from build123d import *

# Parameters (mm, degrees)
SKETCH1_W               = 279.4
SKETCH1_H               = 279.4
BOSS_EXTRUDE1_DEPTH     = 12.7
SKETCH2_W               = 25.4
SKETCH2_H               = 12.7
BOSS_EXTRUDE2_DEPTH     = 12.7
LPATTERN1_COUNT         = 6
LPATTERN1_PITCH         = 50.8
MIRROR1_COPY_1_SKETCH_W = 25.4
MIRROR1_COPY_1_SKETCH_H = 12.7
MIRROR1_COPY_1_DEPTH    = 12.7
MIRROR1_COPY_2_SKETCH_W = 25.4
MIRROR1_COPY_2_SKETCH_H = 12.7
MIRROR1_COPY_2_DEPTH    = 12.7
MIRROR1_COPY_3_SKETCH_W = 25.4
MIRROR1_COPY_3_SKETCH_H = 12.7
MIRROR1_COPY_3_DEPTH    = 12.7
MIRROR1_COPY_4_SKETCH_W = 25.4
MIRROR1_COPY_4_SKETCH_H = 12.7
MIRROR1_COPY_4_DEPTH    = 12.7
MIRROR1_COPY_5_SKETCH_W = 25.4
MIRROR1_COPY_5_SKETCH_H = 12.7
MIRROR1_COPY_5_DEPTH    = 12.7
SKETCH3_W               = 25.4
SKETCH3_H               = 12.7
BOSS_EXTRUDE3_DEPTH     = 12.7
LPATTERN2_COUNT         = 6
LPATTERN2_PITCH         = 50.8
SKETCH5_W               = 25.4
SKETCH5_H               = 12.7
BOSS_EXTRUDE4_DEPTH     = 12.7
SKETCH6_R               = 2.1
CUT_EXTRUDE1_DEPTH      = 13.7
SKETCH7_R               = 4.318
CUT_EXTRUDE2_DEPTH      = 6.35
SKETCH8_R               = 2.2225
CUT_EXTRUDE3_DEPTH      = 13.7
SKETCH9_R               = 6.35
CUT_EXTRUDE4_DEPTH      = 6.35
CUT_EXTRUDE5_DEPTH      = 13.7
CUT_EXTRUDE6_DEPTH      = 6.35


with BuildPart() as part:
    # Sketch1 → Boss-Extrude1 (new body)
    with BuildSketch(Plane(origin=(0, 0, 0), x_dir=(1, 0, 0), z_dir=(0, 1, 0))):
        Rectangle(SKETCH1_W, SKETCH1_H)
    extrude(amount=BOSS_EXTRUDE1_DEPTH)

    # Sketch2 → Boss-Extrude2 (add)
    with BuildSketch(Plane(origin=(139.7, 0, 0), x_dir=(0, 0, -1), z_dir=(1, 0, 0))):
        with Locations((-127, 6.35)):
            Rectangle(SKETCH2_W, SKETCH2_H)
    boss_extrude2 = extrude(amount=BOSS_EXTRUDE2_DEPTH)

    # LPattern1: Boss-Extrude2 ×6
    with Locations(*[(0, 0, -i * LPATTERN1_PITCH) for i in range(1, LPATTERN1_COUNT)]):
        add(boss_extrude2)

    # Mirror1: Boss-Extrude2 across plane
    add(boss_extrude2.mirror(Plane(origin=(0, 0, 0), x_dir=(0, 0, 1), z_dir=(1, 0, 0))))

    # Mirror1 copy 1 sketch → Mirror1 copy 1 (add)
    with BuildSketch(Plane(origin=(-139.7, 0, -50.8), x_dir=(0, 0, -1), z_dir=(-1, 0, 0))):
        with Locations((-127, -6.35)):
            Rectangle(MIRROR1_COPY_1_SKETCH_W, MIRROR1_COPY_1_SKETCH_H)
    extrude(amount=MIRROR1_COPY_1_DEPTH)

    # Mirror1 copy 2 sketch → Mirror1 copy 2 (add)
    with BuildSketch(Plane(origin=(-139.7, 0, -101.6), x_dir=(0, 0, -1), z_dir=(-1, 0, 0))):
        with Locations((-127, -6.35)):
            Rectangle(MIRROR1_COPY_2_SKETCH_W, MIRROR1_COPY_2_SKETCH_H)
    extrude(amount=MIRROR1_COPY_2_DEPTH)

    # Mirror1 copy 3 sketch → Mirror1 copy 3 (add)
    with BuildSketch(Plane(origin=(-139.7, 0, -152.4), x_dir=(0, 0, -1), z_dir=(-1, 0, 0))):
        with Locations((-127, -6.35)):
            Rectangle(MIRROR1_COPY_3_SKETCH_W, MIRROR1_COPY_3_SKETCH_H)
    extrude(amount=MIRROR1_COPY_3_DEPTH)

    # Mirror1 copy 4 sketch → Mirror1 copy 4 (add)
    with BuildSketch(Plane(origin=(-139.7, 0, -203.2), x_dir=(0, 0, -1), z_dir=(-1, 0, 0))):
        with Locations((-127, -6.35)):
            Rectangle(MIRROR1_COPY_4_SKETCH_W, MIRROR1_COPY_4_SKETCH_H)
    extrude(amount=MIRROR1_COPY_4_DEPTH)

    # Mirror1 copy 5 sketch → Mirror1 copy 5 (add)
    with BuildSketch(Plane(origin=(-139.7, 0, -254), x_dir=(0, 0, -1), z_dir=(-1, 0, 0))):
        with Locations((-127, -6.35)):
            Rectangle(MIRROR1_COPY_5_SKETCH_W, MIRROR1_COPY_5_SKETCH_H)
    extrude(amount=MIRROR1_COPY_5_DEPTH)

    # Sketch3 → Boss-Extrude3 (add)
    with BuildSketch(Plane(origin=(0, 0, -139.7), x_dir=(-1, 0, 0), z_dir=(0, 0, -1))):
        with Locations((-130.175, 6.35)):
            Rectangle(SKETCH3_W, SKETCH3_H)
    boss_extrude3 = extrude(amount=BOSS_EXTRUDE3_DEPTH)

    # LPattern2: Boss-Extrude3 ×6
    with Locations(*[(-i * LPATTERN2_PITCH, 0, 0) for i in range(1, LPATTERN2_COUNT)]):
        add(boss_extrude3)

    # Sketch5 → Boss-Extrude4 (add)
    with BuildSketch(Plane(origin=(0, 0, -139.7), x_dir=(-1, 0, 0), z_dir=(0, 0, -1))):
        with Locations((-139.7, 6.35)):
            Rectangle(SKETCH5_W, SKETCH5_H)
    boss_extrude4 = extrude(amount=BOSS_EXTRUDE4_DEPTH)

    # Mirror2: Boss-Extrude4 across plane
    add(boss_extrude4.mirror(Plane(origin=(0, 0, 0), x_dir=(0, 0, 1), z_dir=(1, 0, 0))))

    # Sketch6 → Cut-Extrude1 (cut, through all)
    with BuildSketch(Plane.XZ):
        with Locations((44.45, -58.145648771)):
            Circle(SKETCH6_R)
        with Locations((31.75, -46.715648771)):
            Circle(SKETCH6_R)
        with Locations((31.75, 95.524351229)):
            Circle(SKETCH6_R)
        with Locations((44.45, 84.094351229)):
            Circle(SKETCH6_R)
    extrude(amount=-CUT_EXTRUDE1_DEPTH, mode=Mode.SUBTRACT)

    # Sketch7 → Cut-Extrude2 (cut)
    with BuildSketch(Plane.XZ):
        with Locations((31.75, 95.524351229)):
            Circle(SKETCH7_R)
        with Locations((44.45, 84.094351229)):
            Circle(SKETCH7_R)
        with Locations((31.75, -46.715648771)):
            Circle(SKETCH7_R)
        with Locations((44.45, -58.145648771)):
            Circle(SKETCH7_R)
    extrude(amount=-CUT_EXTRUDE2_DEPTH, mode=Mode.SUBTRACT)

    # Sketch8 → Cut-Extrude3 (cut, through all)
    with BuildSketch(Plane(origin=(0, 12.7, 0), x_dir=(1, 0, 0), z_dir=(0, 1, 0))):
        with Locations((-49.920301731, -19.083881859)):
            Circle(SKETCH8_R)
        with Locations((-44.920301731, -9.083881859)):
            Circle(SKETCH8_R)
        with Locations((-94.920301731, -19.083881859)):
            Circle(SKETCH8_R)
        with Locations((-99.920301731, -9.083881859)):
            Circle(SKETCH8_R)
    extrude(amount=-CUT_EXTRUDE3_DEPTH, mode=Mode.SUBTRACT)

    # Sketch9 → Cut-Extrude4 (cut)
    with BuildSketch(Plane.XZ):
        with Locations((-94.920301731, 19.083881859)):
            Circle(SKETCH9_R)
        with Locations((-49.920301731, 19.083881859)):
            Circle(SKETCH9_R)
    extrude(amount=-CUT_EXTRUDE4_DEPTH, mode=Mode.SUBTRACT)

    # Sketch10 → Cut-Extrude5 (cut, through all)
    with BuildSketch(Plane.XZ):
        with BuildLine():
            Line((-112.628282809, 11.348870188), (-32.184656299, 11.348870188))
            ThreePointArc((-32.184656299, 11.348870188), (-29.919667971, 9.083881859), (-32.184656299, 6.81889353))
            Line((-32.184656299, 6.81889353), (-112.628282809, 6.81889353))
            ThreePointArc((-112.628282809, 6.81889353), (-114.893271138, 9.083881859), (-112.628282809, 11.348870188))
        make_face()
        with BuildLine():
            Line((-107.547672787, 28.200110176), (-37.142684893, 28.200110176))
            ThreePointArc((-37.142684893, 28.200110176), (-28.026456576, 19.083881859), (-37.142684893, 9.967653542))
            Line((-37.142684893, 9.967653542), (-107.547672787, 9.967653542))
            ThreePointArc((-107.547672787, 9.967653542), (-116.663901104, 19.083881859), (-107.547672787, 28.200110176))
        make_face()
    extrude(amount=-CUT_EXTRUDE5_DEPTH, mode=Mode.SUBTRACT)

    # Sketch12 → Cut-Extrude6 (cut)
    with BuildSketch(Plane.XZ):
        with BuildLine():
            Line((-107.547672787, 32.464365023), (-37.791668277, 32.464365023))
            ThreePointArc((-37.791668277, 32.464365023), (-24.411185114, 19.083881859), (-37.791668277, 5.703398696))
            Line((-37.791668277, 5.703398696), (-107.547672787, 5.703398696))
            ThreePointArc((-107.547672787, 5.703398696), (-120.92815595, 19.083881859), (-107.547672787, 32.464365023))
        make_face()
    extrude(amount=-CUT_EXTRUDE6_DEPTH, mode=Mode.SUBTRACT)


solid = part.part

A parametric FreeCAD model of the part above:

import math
import FreeCAD as App
import Part
import Sketcher
Q = App.Units.Quantity


def add_polygon(sketch, points):
    """Adds a closed chain of lines whose ends are joined by coincident constraints."""
    first, n = sketch.GeometryCount, len(points)
    for a, b in zip(points, points[1:] + points[:1]):
        sketch.addGeometry(Part.LineSegment(App.Vector(*a, 0), App.Vector(*b, 0)), False)
    for i in range(n):
        sketch.addConstraint(Sketcher.Constraint("Coincident", first + i, 2, first + (i + 1) % n, 1))

doc = App.newDocument("Part")
body = doc.addObject("PartDesign::Body", "Body")

# Sketch on XZ plane
sketch1 = body.newObject("Sketcher::SketchObject", "Sketch")
sketch1.AttachmentSupport = (doc.getObject("XZ_Plane"), [""])
sketch1.MapMode = "FlatFace"
add_polygon(sketch1, [(-139.7, -139.7), (-139.7, 139.7), (139.7, 139.7), (139.7, -139.7)])  # lines 0-3
sketch1.addConstraint([
    Sketcher.Constraint("Vertical", 0),
    Sketcher.Constraint("Horizontal", 1),
    Sketcher.Constraint("Vertical", 2),
    Sketcher.Constraint("Horizontal", 3),
    Sketcher.Constraint("Symmetric", 0, 2, 2, 2, -1, 1),
    Sketcher.Constraint("Equal", 3, 0),
    Sketcher.Constraint("DistanceX", 1, 1, 1, 2, Q("11 in")),
])
pad1 = body.newObject("PartDesign::Pad", "Pad")
pad1.Profile = sketch1
pad1.Length = Q("0.5 in")
pad1.Reversed = True

# Sketch on YZ plane
sketch2 = body.newObject("Sketcher::SketchObject", "Sketch001")
sketch2.AttachmentSupport = (doc.getObject("YZ_Plane"), [""])
sketch2.MapMode = "FlatFace"
sketch2.AttachmentOffset = App.Placement(App.Vector(0, 0, 5.5 * 25.4), App.Rotation())
add_polygon(sketch2, [(12.7, 139.7), (0, 139.7), (0, 114.3), (12.7, 114.3)])  # lines 0-3
sketch2.addConstraint([
    Sketcher.Constraint("Horizontal", 0),
    Sketcher.Constraint("Vertical", 1),
    Sketcher.Constraint("Horizontal", 2),
    Sketcher.Constraint("Vertical", 3),
    Sketcher.Constraint("PointOnObject", 0, 2, -2),
    Sketcher.Constraint("DistanceY", 1, 2, 1, 1, Q("1 in")),
    Sketcher.Constraint("DistanceX", 0, 2, 0, 1, Q("0.5 in")),
    Sketcher.Constraint("DistanceY", -1, 1, 0, 2, Q("5.5 in")),
])
pad2 = body.newObject("PartDesign::Pad", "Pad001")
pad2.Profile = sketch2
pad2.Length = Q("0.5 in")
doc.recompute()

linearpattern = body.newObject("PartDesign::LinearPattern", "LinearPattern")
linearpattern.Originals = [pad2]
linearpattern.Direction = (doc.getObject("Z_Axis"), [""])
linearpattern.Mode = "offset"
linearpattern.Offset = Q("2 in")
linearpattern.Occurrences = 6
linearpattern.Reversed = True
body.Tip = linearpattern
doc.recompute()

mirrored = body.newObject("PartDesign::Mirrored", "Mirrored")
mirrored.Originals = [pad2]
mirrored.MirrorPlane = (doc.getObject("YZ_Plane"), [""])
body.Tip = mirrored

# Sketch on YZ plane
sketch3 = body.newObject("Sketcher::SketchObject", "Sketch002")
sketch3.AttachmentSupport = (doc.getObject("YZ_Plane"), [""])
sketch3.MapMode = "FlatFace"
sketch3.AttachmentOffset = App.Placement(App.Vector(0, 0, -5.5 * 25.4), App.Rotation())
add_polygon(sketch3, [(0, 88.9), (12.7, 88.9), (12.7, 63.5), (0, 63.5)])  # lines 0-3
sketch3.addConstraint([
    Sketcher.Constraint("Horizontal", 0),
    Sketcher.Constraint("Vertical", 1),
    Sketcher.Constraint("Horizontal", 2),
    Sketcher.Constraint("Vertical", 3),
    Sketcher.Constraint("PointOnObject", 2, 2, -2),
    Sketcher.Constraint("DistanceY", 1, 2, 1, 1, Q("1 in")),
    Sketcher.Constraint("DistanceX", 0, 1, 0, 2, Q("0.5 in")),
    Sketcher.Constraint("DistanceY", -1, 1, 0, 2, Q("3.5 in")),
])
pad3 = body.newObject("PartDesign::Pad", "Pad002")
pad3.Profile = sketch3
pad3.Length = Q("0.5 in")
pad3.Reversed = True

# Sketch on YZ plane
sketch4 = body.newObject("Sketcher::SketchObject", "Sketch003")
sketch4.AttachmentSupport = (doc.getObject("YZ_Plane"), [""])
sketch4.MapMode = "FlatFace"
sketch4.AttachmentOffset = App.Placement(App.Vector(0, 0, -5.5 * 25.4), App.Rotation())
add_polygon(sketch4, [(0, 38.1), (12.7, 38.1), (12.7, 12.7), (0, 12.7)])  # lines 0-3
sketch4.addConstraint([
    Sketcher.Constraint("Horizontal", 0),
    Sketcher.Constraint("Vertical", 1),
    Sketcher.Constraint("Horizontal", 2),
    Sketcher.Constraint("Vertical", 3),
    Sketcher.Constraint("PointOnObject", 2, 2, -2),
    Sketcher.Constraint("DistanceY", 1, 2, 1, 1, Q("1 in")),
    Sketcher.Constraint("DistanceX", 0, 1, 0, 2, Q("0.5 in")),
    Sketcher.Constraint("DistanceY", -1, 1, 0, 2, Q("1.5 in")),
])
pad4 = body.newObject("PartDesign::Pad", "Pad003")
pad4.Profile = sketch4
pad4.Length = Q("0.5 in")
pad4.Reversed = True

# Sketch on YZ plane
sketch5 = body.newObject("Sketcher::SketchObject", "Sketch004")
sketch5.AttachmentSupport = (doc.getObject("YZ_Plane"), [""])
sketch5.MapMode = "FlatFace"
sketch5.AttachmentOffset = App.Placement(App.Vector(0, 0, -5.5 * 25.4), App.Rotation())
add_polygon(sketch5, [(0, -12.7), (12.7, -12.7), (12.7, -38.1), (0, -38.1)])  # lines 0-3
sketch5.addConstraint([
    Sketcher.Constraint("Horizontal", 0),
    Sketcher.Constraint("Vertical", 1),
    Sketcher.Constraint("Horizontal", 2),
    Sketcher.Constraint("Vertical", 3),
    Sketcher.Constraint("PointOnObject", 2, 2, -2),
    Sketcher.Constraint("DistanceY", 1, 2, 1, 1, Q("1 in")),
    Sketcher.Constraint("DistanceX", 0, 1, 0, 2, Q("0.5 in")),
    Sketcher.Constraint("DistanceY", 0, 2, -1, 1, Q("0.5 in")),
])
pad5 = body.newObject("PartDesign::Pad", "Pad004")
pad5.Profile = sketch5
pad5.Length = Q("0.5 in")
pad5.Reversed = True

# Sketch on YZ plane
sketch6 = body.newObject("Sketcher::SketchObject", "Sketch005")
sketch6.AttachmentSupport = (doc.getObject("YZ_Plane"), [""])
sketch6.MapMode = "FlatFace"
sketch6.AttachmentOffset = App.Placement(App.Vector(0, 0, -5.5 * 25.4), App.Rotation())
add_polygon(sketch6, [(0, -63.5), (12.7, -63.5), (12.7, -88.9), (0, -88.9)])  # lines 0-3
sketch6.addConstraint([
    Sketcher.Constraint("Horizontal", 0),
    Sketcher.Constraint("Vertical", 1),
    Sketcher.Constraint("Horizontal", 2),
    Sketcher.Constraint("Vertical", 3),
    Sketcher.Constraint("PointOnObject", 2, 2, -2),
    Sketcher.Constraint("DistanceY", 1, 2, 1, 1, Q("1 in")),
    Sketcher.Constraint("DistanceX", 0, 1, 0, 2, Q("0.5 in")),
    Sketcher.Constraint("DistanceY", 0, 2, -1, 1, Q("2.5 in")),
])
pad6 = body.newObject("PartDesign::Pad", "Pad005")
pad6.Profile = sketch6
pad6.Length = Q("0.5 in")
pad6.Reversed = True

# Sketch on YZ plane
sketch7 = body.newObject("Sketcher::SketchObject", "Sketch006")
sketch7.AttachmentSupport = (doc.getObject("YZ_Plane"), [""])
sketch7.MapMode = "FlatFace"
sketch7.AttachmentOffset = App.Placement(App.Vector(0, 0, -5.5 * 25.4), App.Rotation())
add_polygon(sketch7, [(0, -114.3), (12.7, -114.3), (12.7, -139.7), (0, -139.7)])  # lines 0-3
sketch7.addConstraint([
    Sketcher.Constraint("Horizontal", 0),
    Sketcher.Constraint("Vertical", 1),
    Sketcher.Constraint("Horizontal", 2),
    Sketcher.Constraint("Vertical", 3),
    Sketcher.Constraint("PointOnObject", 2, 2, -2),
    Sketcher.Constraint("DistanceY", 1, 2, 1, 1, Q("1 in")),
    Sketcher.Constraint("DistanceX", 0, 1, 0, 2, Q("0.5 in")),
    Sketcher.Constraint("DistanceY", 0, 2, -1, 1, Q("4.5 in")),
])
pad7 = body.newObject("PartDesign::Pad", "Pad006")
pad7.Profile = sketch7
pad7.Length = Q("0.5 in")
pad7.Reversed = True

# Sketch on XY plane
sketch8 = body.newObject("Sketcher::SketchObject", "Sketch007")
sketch8.AttachmentSupport = (doc.getObject("XY_Plane"), [""])
sketch8.MapMode = "FlatFace"
sketch8.AttachmentOffset = App.Placement(App.Vector(0, 0, -5.5 * 25.4), App.Rotation())
add_polygon(sketch8, [(142.875, 12.7), (142.875, 0), (117.475, 0), (117.475, 12.7)])  # lines 0-3
sketch8.addConstraint([
    Sketcher.Constraint("Vertical", 0),
    Sketcher.Constraint("Horizontal", 1),
    Sketcher.Constraint("Vertical", 2),
    Sketcher.Constraint("Horizontal", 3),
    Sketcher.Constraint("PointOnObject", 0, 2, -1),
    Sketcher.Constraint("DistanceX", 1, 2, 1, 1, Q("1 in")),
    Sketcher.Constraint("DistanceY", 0, 2, 0, 1, Q("0.5 in")),
    Sketcher.Constraint("DistanceX", -1, 1, 0, 2, Q("5.625 in")),
])
pad8 = body.newObject("PartDesign::Pad", "Pad007")
pad8.Profile = sketch8
pad8.Length = Q("0.5 in")
pad8.Reversed = True
doc.recompute()

linearpattern2 = body.newObject("PartDesign::LinearPattern", "LinearPattern001")
linearpattern2.Originals = [pad8]
linearpattern2.Direction = (doc.getObject("X_Axis"), [""])
linearpattern2.Mode = "offset"
linearpattern2.Offset = Q("2 in")
linearpattern2.Occurrences = 6
linearpattern2.Reversed = True
body.Tip = linearpattern2

# Sketch on XY plane
sketch9 = body.newObject("Sketcher::SketchObject", "Sketch008")
sketch9.AttachmentSupport = (doc.getObject("XY_Plane"), [""])
sketch9.MapMode = "FlatFace"
sketch9.AttachmentOffset = App.Placement(App.Vector(0, 0, -5.5 * 25.4), App.Rotation())
add_polygon(sketch9, [(152.4, 12.7), (152.4, 0), (127, 0), (127, 12.7)])  # lines 0-3
sketch9.addConstraint([
    Sketcher.Constraint("Vertical", 0),
    Sketcher.Constraint("Horizontal", 1),
    Sketcher.Constraint("Vertical", 2),
    Sketcher.Constraint("Horizontal", 3),
    Sketcher.Constraint("PointOnObject", 0, 2, -1),
    Sketcher.Constraint("DistanceX", 1, 2, 1, 1, Q("1 in")),
    Sketcher.Constraint("DistanceY", 0, 2, 0, 1, Q("0.5 in")),
    Sketcher.Constraint("DistanceX", -1, 1, 0, 2, Q("6 in")),
])
pad9 = body.newObject("PartDesign::Pad", "Pad008")
pad9.Profile = sketch9
pad9.Length = Q("0.5 in")
pad9.Reversed = True
doc.recompute()

mirrored2 = body.newObject("PartDesign::Mirrored", "Mirrored001")
mirrored2.Originals = [pad9]
mirrored2.MirrorPlane = (doc.getObject("YZ_Plane"), [""])
body.Tip = mirrored2

# Sketch on XZ plane
sketch10 = body.newObject("Sketcher::SketchObject", "Sketch009")
sketch10.AttachmentSupport = (doc.getObject("XZ_Plane"), [""])
sketch10.MapMode = "FlatFace"
sketch10.addGeometry([
    Part.Circle(App.Vector(44.45, -58.145649, 0), App.Vector(0, 0, 1), 2.1),
    Part.Circle(App.Vector(31.75, -46.715649, 0), App.Vector(0, 0, 1), 2.1),
    Part.Circle(App.Vector(31.75, 95.524351, 0), App.Vector(0, 0, 1), 2.1),
    Part.Circle(App.Vector(44.45, 84.094351, 0), App.Vector(0, 0, 1), 2.1),
], False)
sketch10.addConstraint([
    Sketcher.Constraint("Equal", 0, 1),
    Sketcher.Constraint("Equal", 1, 2),
    Sketcher.Constraint("Equal", 2, 3),
    Sketcher.Constraint("Vertical", 1, 3, 2, 3),
    Sketcher.Constraint("Vertical", 0, 3, 3, 3),
    Sketcher.Constraint("DistanceX", 1, 3, 0, 3, Q("0.5 in")),
    Sketcher.Constraint("DistanceY", 1, 3, 2, 3, Q("5.6 in")),
    Sketcher.Constraint("DistanceY", 0, 3, 3, 3, Q("5.6 in")),
    Sketcher.Constraint("Diameter", 0, 4.2),
    Sketcher.Constraint("DistanceX", -1, 1, 0, 3, Q("1.75 in")),
    Sketcher.Constraint("DistanceY", 0, 3, 1, 3, Q("0.45 in")),
    Sketcher.Constraint("DistanceY", 0, 3, -1, 1, 58.145649),
])
pocket1 = body.newObject("PartDesign::Pocket", "Pocket")
pocket1.Profile = sketch10
pocket1.Type = "ThroughAll"

# Sketch on XZ plane
sketch11 = body.newObject("Sketcher::SketchObject", "Sketch010")
sketch11.AttachmentSupport = (doc.getObject("XZ_Plane"), [""])
sketch11.MapMode = "FlatFace"
sketch11.addGeometry([
    Part.Circle(App.Vector(31.75, 95.524351, 0), App.Vector(0, 0, 1), 4.318),
    Part.Circle(App.Vector(44.45, 84.094351, 0), App.Vector(0, 0, 1), 4.318),
    Part.Circle(App.Vector(31.75, -46.715649, 0), App.Vector(0, 0, 1), 4.318),
    Part.Circle(App.Vector(44.45, -58.145649, 0), App.Vector(0, 0, 1), 4.318),
], False)
sketch11.addConstraint([
    Sketcher.Constraint("Equal", 0, 1),
    Sketcher.Constraint("Equal", 1, 2),
    Sketcher.Constraint("Equal", 2, 3),
    Sketcher.Constraint("Vertical", 0, 3, 2, 3),
    Sketcher.Constraint("Vertical", 1, 3, 3, 3),
    Sketcher.Constraint("Diameter", 0, Q("0.34 in")),
    Sketcher.Constraint("DistanceX", 0, 3, 1, 3, Q("0.5 in")),
    Sketcher.Constraint("DistanceY", 2, 3, 0, 3, Q("5.6 in")),
    Sketcher.Constraint("DistanceY", 3, 3, 1, 3, Q("5.6 in")),
    Sketcher.Constraint("DistanceX", -1, 1, 0, 3, Q("1.25 in")),
    Sketcher.Constraint("DistanceY", 1, 3, 0, 3, Q("0.45 in")),
    Sketcher.Constraint("DistanceY", -1, 1, 0, 3, 95.524351),
])
pocket2 = body.newObject("PartDesign::Pocket", "Pocket001")
pocket2.Profile = sketch11
pocket2.Length = Q("0.25 in")

# Sketch on XZ plane
sketch12 = body.newObject("Sketcher::SketchObject", "Sketch011")
sketch12.AttachmentSupport = (doc.getObject("XZ_Plane"), [""])
sketch12.MapMode = "FlatFace"
sketch12.AttachmentOffset = App.Placement(App.Vector(0, 0, -0.5 * 25.4), App.Rotation())
sketch12.addGeometry([
    Part.Circle(App.Vector(-49.920302, 19.083882, 0), App.Vector(0, 0, 1), 2.2225),
    Part.Circle(App.Vector(-44.920302, 9.083882, 0), App.Vector(0, 0, 1), 2.2225),
    Part.Circle(App.Vector(-94.920302, 19.083882, 0), App.Vector(0, 0, 1), 2.2225),
    Part.Circle(App.Vector(-99.920302, 9.083882, 0), App.Vector(0, 0, 1), 2.2225),
], False)
sketch12.addConstraint([
    Sketcher.Constraint("Equal", 0, 1),
    Sketcher.Constraint("Equal", 1, 2),
    Sketcher.Constraint("Equal", 2, 3),
    Sketcher.Constraint("Horizontal", 0, 3, 2, 3),
    Sketcher.Constraint("Horizontal", 1, 3, 3, 3),
    Sketcher.Constraint("Diameter", 0, Q("0.175 in")),
    Sketcher.Constraint("DistanceX", 0, 3, -1, 1, 49.920302),
    Sketcher.Constraint("DistanceX", 1, 3, -1, 1, 44.920302),
    Sketcher.Constraint("DistanceX", 2, 3, -1, 1, 94.920302),
    Sketcher.Constraint("DistanceX", 3, 3, -1, 1, 99.920302),
    Sketcher.Constraint("DistanceY", 1, 3, 0, 3, 10.0),
    Sketcher.Constraint("DistanceY", -1, 1, 0, 3, 19.083882),
])
pocket3 = body.newObject("PartDesign::Pocket", "Pocket002")
pocket3.Profile = sketch12
pocket3.Type = "ThroughAll"
pocket3.Reversed = True

# Sketch on XZ plane
sketch13 = body.newObject("Sketcher::SketchObject", "Sketch012")
sketch13.AttachmentSupport = (doc.getObject("XZ_Plane"), [""])
sketch13.MapMode = "FlatFace"
sketch13.addGeometry([
    Part.Circle(App.Vector(-94.920302, 19.083882, 0), App.Vector(0, 0, 1), 6.35),
    Part.Circle(App.Vector(-49.920302, 19.083882, 0), App.Vector(0, 0, 1), 6.35),
], False)
sketch13.addConstraint([
    Sketcher.Constraint("Equal", 0, 1),
    Sketcher.Constraint("Horizontal", 0, 3, 1, 3),
    Sketcher.Constraint("Diameter", 0, Q("0.5 in")),
    Sketcher.Constraint("DistanceX", 0, 3, -1, 1, 94.920302),
    Sketcher.Constraint("DistanceX", 1, 3, -1, 1, 49.920302),
    Sketcher.Constraint("DistanceY", -1, 1, 0, 3, 19.083882),
])
pocket4 = body.newObject("PartDesign::Pocket", "Pocket003")
pocket4.Profile = sketch13
pocket4.Length = Q("0.25 in")

# Sketch on XZ plane
sketch14 = body.newObject("Sketcher::SketchObject", "Sketch013")
sketch14.AttachmentSupport = (doc.getObject("XZ_Plane"), [""])
sketch14.MapMode = "FlatFace"
sketch14.addGeometry([
    Part.ArcOfCircle(Part.Circle(App.Vector(-112.628283, 9.083882, 0), App.Vector(0, 0, 1), 2.264988), math.radians(90), math.radians(270)),  # 0
    Part.LineSegment(App.Vector(-112.628283, 6.818894, 0), App.Vector(-32.184656, 6.818894, 0)),  # 1
    Part.ArcOfCircle(Part.Circle(App.Vector(-32.184656, 9.083882, 0), App.Vector(0, 0, 1), 2.264988), math.radians(-90), math.radians(90)),  # 2
    Part.LineSegment(App.Vector(-32.184656, 11.34887, 0), App.Vector(-32.318246, 11.34887, 0)),  # 3
    Part.ArcOfCircle(Part.Circle(App.Vector(-37.142685, 19.083882, 0), App.Vector(0, 0, 1), 9.116228), math.radians(-58.047611), math.radians(90)),  # 4
    Part.LineSegment(App.Vector(-37.142685, 28.20011, 0), App.Vector(-107.547673, 28.20011, 0)),  # 5
    Part.ArcOfCircle(Part.Circle(App.Vector(-107.547673, 19.083882, 0), App.Vector(0, 0, 1), 9.116228), math.radians(90), math.radians(238.047611)),  # 6
    Part.LineSegment(App.Vector(-112.372112, 11.34887, 0), App.Vector(-112.628283, 11.34887, 0)),  # 7
], False)
sketch14.addConstraint([
    Sketcher.Constraint("Tangent", 0, 2, 1, 1),
    Sketcher.Constraint("Tangent", 1, 2, 2, 1),
    Sketcher.Constraint("Tangent", 2, 2, 3, 1),
    Sketcher.Constraint("Coincident", 3, 2, 4, 1),
    Sketcher.Constraint("Tangent", 4, 2, 5, 1),
    Sketcher.Constraint("Tangent", 5, 2, 6, 1),
    Sketcher.Constraint("Coincident", 6, 2, 7, 1),
    Sketcher.Constraint("Tangent", 7, 2, 0, 1),
    Sketcher.Constraint("Horizontal", 1),
    Sketcher.Constraint("Horizontal", 3),
    Sketcher.Constraint("Horizontal", 5),
    Sketcher.Constraint("Horizontal", 7),
    Sketcher.Constraint("Equal", 0, 2),
    Sketcher.Constraint("Equal", 4, 6),
    Sketcher.Constraint("Radius", 0, 2.264988),
    Sketcher.Constraint("Radius", 4, 9.116228),
    Sketcher.Constraint("DistanceX", 3, 2, 3, 1, 0.133589),
    Sketcher.Constraint("DistanceX", 7, 2, 7, 1, 0.256171),
    Sketcher.Constraint("DistanceY", 2, 3, 4, 3, 10.0),
    Sketcher.Constraint("DistanceX", 1, 1, 1, 2, 80.443627),
    Sketcher.Constraint("DistanceY", -1, 1, 0, 3, 9.083882),
    Sketcher.Constraint("DistanceX", 6, 2, -1, 1, 112.372112),
])
pocket5 = body.newObject("PartDesign::Pocket", "Pocket004")
pocket5.Profile = sketch14
pocket5.Type = "ThroughAll"

# Sketch on XZ plane
sketch15 = body.newObject("Sketcher::SketchObject", "Sketch014")
sketch15.AttachmentSupport = (doc.getObject("XZ_Plane"), [""])
sketch15.MapMode = "FlatFace"
sketch15.addGeometry([
    Part.LineSegment(App.Vector(-37.791668, 32.464365, 0), App.Vector(-107.547673, 32.464365, 0)),
    Part.ArcOfCircle(Part.Circle(App.Vector(-107.547673, 19.083882, 0), App.Vector(0, 0, 1), 13.380483), math.radians(90), math.radians(270)),
    Part.LineSegment(App.Vector(-107.547673, 5.703399, 0), App.Vector(-37.791668, 5.703399, 0)),
    Part.ArcOfCircle(Part.Circle(App.Vector(-37.791668, 19.083882, 0), App.Vector(0, 0, 1), 13.380483), math.radians(-90), math.radians(90)),
], False)
sketch15.addConstraint([
    Sketcher.Constraint("Tangent", 0, 2, 1, 1),
    Sketcher.Constraint("Tangent", 1, 2, 2, 1),
    Sketcher.Constraint("Tangent", 2, 2, 3, 1),
    Sketcher.Constraint("Tangent", 3, 2, 0, 1),
    Sketcher.Constraint("Horizontal", 0),
    Sketcher.Constraint("Horizontal", 2),
    Sketcher.Constraint("Radius", 1, 13.380483),
    Sketcher.Constraint("DistanceY", -1, 1, 1, 2, 5.703399),
    Sketcher.Constraint("DistanceX", 0, 2, 0, 1, 69.756005),
    Sketcher.Constraint("DistanceX", 3, 3, -1, 1, 37.791668),
])
pocket6 = body.newObject("PartDesign::Pocket", "Pocket005")
pocket6.Profile = sketch15
pocket6.Length = Q("0.25 in")

doc.recompute()
